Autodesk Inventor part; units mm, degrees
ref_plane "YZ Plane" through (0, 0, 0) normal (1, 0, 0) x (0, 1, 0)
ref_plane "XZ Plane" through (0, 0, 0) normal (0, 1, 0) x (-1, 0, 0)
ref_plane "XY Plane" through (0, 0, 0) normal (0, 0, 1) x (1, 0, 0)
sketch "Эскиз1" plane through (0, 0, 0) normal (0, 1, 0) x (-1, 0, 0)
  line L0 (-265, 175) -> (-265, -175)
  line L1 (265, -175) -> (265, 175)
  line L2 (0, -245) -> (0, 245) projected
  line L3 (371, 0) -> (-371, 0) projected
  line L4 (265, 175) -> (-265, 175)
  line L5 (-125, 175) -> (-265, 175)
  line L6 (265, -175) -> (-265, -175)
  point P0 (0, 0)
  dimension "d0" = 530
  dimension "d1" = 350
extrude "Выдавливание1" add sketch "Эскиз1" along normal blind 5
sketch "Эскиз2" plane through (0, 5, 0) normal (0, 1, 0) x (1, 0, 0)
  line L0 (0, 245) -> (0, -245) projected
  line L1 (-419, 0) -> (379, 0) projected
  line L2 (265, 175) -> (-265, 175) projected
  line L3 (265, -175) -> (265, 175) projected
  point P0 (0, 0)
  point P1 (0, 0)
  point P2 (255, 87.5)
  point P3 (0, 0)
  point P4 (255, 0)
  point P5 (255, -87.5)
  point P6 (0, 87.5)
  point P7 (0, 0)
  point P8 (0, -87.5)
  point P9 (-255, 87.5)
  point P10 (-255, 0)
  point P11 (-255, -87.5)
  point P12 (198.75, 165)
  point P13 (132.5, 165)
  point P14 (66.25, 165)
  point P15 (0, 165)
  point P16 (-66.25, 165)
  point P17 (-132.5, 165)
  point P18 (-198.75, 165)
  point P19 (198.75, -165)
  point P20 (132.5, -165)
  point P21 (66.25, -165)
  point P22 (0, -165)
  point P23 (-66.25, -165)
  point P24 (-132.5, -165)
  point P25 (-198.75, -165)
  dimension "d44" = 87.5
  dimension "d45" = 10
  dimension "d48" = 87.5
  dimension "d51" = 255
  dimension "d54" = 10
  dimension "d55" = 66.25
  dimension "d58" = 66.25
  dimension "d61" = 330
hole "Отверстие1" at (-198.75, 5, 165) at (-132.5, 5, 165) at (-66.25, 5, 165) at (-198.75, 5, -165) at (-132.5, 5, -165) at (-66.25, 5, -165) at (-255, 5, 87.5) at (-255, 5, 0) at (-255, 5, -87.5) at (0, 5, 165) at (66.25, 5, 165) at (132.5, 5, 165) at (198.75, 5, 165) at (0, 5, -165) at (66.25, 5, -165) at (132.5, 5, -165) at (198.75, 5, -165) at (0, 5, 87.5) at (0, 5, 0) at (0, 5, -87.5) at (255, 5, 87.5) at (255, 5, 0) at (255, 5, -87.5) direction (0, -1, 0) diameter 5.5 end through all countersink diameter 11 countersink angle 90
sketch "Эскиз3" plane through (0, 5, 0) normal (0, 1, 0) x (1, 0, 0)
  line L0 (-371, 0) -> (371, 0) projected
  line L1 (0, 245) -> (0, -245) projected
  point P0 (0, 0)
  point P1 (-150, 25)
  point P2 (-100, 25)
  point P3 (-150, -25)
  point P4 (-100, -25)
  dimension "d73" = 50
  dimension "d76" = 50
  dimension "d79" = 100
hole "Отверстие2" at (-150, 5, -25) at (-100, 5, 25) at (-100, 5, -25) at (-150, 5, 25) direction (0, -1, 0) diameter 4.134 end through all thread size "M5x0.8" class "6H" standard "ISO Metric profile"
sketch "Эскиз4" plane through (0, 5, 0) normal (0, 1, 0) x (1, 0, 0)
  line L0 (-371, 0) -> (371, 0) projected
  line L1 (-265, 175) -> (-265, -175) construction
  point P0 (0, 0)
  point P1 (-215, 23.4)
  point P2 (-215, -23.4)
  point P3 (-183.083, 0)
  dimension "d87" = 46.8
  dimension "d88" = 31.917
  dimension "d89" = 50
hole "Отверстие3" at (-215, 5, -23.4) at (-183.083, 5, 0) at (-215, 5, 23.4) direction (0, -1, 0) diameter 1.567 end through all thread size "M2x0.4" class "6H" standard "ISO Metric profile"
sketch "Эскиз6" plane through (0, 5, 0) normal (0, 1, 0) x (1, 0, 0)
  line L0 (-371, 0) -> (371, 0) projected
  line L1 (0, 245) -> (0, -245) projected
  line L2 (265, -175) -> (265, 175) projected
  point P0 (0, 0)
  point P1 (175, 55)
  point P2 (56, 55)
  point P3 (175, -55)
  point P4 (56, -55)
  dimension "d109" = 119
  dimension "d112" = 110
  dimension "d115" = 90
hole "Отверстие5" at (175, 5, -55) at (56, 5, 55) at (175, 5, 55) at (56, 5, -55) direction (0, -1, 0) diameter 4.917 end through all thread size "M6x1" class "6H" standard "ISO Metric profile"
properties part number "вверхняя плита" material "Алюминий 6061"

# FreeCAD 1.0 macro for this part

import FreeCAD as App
import Part
import Sketcher
from FreeCAD import Vector
Q = App.Units.Quantity

doc = App.newDocument("Part")
params = doc.addObject("Spreadsheet::Sheet", "Params")
for row, (alias, value) in enumerate([
    ("sketch1_width", "530 mm"),
    ("sketch1_height", "350 mm"),
    ("pad1_length", "5 mm"),
    ("sketch2_diameter", "5.5 mm"),
    ("hole_diameter", "5.5 mm"),
    ("hole_csink_diameter", "11 mm"),
    ("hole2_diameter", "4.134 mm"),
    ("hole3_diameter", "1.567 mm"),
    ("hole4_diameter", "4.917 mm"),
], start=1):
    params.set(f"A{row}", alias)
    params.set(f"B{row}", "=" + value)
    params.setAlias(f"B{row}", alias)

body = doc.addObject("PartDesign::Body", "Body")

sketch1 = body.newObject("Sketcher::SketchObject", "Sketch")
sketch1.AttachmentSupport = (doc.getObject("XZ_Plane"), [""])
sketch1.MapMode = "FlatFace"
sketch1.addGeometry(Part.LineSegment(Vector(265, 175, 0), Vector(265, -175, 0)), False)
sketch1.addGeometry(Part.LineSegment(Vector(265, -175, 0), Vector(-265, -175, 0)), False)
sketch1.addGeometry(Part.LineSegment(Vector(-265, -175, 0), Vector(-265, 175, 0)), False)
sketch1.addGeometry(Part.LineSegment(Vector(-265, 175, 0), Vector(265, 175, 0)), False)
sketch1.addConstraint(Sketcher.Constraint("Coincident", 0, 2, 1, 1))
sketch1.addConstraint(Sketcher.Constraint("Coincident", 1, 2, 2, 1))
sketch1.addConstraint(Sketcher.Constraint("Coincident", 2, 2, 3, 1))
sketch1.addConstraint(Sketcher.Constraint("Coincident", 3, 2, 0, 1))
sketch1.addConstraint(Sketcher.Constraint("Vertical", 0))
sketch1.addConstraint(Sketcher.Constraint("Horizontal", 1))
sketch1.addConstraint(Sketcher.Constraint("Vertical", 2))
sketch1.addConstraint(Sketcher.Constraint("Horizontal", 3))
sketch1.addConstraint(Sketcher.Constraint("Symmetric", 0, 2, 2, 2, -1, 1))
sketch1.addConstraint(Sketcher.Constraint("DistanceX", 1, 2, 1, 1, Q("530 mm")))
sketch1.addConstraint(Sketcher.Constraint("DistanceY", 0, 2, 0, 1, Q("350 mm")))
sketch1.setExpression("Constraints[9]", "Params.sketch1_width")
sketch1.setExpression("Constraints[10]", "Params.sketch1_height")
pad1 = body.newObject("PartDesign::Pad", "Pad")
pad1.Profile = sketch1
pad1.setExpression("Length", "Params.pad1_length")
pad1.Reversed = True

sketch2 = body.newObject("Sketcher::SketchObject", "Sketch001")
sketch2.AttachmentSupport = (doc.getObject("XZ_Plane"), [""])
sketch2.MapMode = "FlatFace"
sketch2.AttachmentOffset = App.Placement(Vector(0, 0, -5), App.Rotation())
sketch2.addGeometry(Part.Circle(Vector(-198.8, 165, 0), Vector(0, 0, 1), 2.8), False)
sketch2.addGeometry(Part.Circle(Vector(-132.5, 165, 0), Vector(0, 0, 1), 2.8), False)
sketch2.addGeometry(Part.Circle(Vector(-66.2, 165, 0), Vector(0, 0, 1), 2.8), False)
sketch2.addGeometry(Part.Circle(Vector(-198.8, -165, 0), Vector(0, 0, 1), 2.8), False)
sketch2.addGeometry(Part.Circle(Vector(-132.5, -165, 0), Vector(0, 0, 1), 2.8), False)
sketch2.addGeometry(Part.Circle(Vector(-66.2, -165, 0), Vector(0, 0, 1), 2.8), False)
sketch2.addGeometry(Part.Circle(Vector(-255, 87.5, 0), Vector(0, 0, 1), 2.8), False)
sketch2.addGeometry(Part.Circle(Vector(-255, 0, 0), Vector(0, 0, 1), 2.8), False)
sketch2.addGeometry(Part.Circle(Vector(-255, -87.5, 0), Vector(0, 0, 1), 2.8), False)
sketch2.addGeometry(Part.Circle(Vector(0, 165, 0), Vector(0, 0, 1), 2.8), False)
sketch2.addGeometry(Part.Circle(Vector(66.2, 165, 0), Vector(0, 0, 1), 2.8), False)
sketch2.addGeometry(Part.Circle(Vector(132.5, 165, 0), Vector(0, 0, 1), 2.8), False)
sketch2.addGeometry(Part.Circle(Vector(198.8, 165, 0), Vector(0, 0, 1), 2.8), False)
sketch2.addGeometry(Part.Circle(Vector(0, -165, 0), Vector(0, 0, 1), 2.8), False)
sketch2.addGeometry(Part.Circle(Vector(66.2, -165, 0), Vector(0, 0, 1), 2.8), False)
sketch2.addGeometry(Part.Circle(Vector(132.5, -165, 0), Vector(0, 0, 1), 2.8), False)
sketch2.addGeometry(Part.Circle(Vector(198.8, -165, 0), Vector(0, 0, 1), 2.8), False)
sketch2.addGeometry(Part.Circle(Vector(0, 87.5, 0), Vector(0, 0, 1), 2.8), False)
sketch2.addGeometry(Part.Circle(Vector(0, 0, 0), Vector(0, 0, 1), 2.8), False)
sketch2.addGeometry(Part.Circle(Vector(0, -87.5, 0), Vector(0, 0, 1), 2.8), False)
sketch2.addGeometry(Part.Circle(Vector(255, 87.5, 0), Vector(0, 0, 1), 2.8), False)
sketch2.addGeometry(Part.Circle(Vector(255, 0, 0), Vector(0, 0, 1), 2.8), False)
sketch2.addGeometry(Part.Circle(Vector(255, -87.5, 0), Vector(0, 0, 1), 2.8), False)
sketch2.addConstraint(Sketcher.Constraint("Coincident", 18, 3, -1, 1))
sketch2.addConstraint(Sketcher.Constraint("Equal", 0, 1))
sketch2.addConstraint(Sketcher.Constraint("Equal", 1, 2))
sketch2.addConstraint(Sketcher.Constraint("Equal", 2, 3))
sketch2.addConstraint(Sketcher.Constraint("Equal", 3, 4))
sketch2.addConstraint(Sketcher.Constraint("Equal", 4, 5))
sketch2.addConstraint(Sketcher.Constraint("Equal", 5, 6))
sketch2.addConstraint(Sketcher.Constraint("Equal", 6, 7))
sketch2.addConstraint(Sketcher.Constraint("Equal", 7, 8))
sketch2.addConstraint(Sketcher.Constraint("Equal", 8, 9))
sketch2.addConstraint(Sketcher.Constraint("Equal", 9, 10))
sketch2.addConstraint(Sketcher.Constraint("Equal", 10, 11))
sketch2.addConstraint(Sketcher.Constraint("Equal", 11, 12))
sketch2.addConstraint(Sketcher.Constraint("Equal", 12, 13))
sketch2.addConstraint(Sketcher.Constraint("Equal", 13, 14))
sketch2.addConstraint(Sketcher.Constraint("Equal", 14, 15))
sketch2.addConstraint(Sketcher.Constraint("Equal", 15, 16))
sketch2.addConstraint(Sketcher.Constraint("Equal", 16, 17))
sketch2.addConstraint(Sketcher.Constraint("Equal", 17, 18))
sketch2.addConstraint(Sketcher.Constraint("Equal", 18, 19))
sketch2.addConstraint(Sketcher.Constraint("Equal", 19, 20))
sketch2.addConstraint(Sketcher.Constraint("Equal", 20, 21))
sketch2.addConstraint(Sketcher.Constraint("Equal", 21, 22))
sketch2.addConstraint(Sketcher.Constraint("Symmetric", 5, 3, 10, 3, -1, 1))
sketch2.addConstraint(Sketcher.Constraint("Symmetric", 4, 3, 11, 3, -1, 1))
sketch2.addConstraint(Sketcher.Constraint("Symmetric", 3, 3, 12, 3, -1, 1))
sketch2.addConstraint(Sketcher.Constraint("Symmetric", 9, 3, 13, 3, -1, 1))
sketch2.addConstraint(Sketcher.Constraint("Symmetric", 2, 3, 14, 3, -1, 1))
sketch2.addConstraint(Sketcher.Constraint("Symmetric", 1, 3, 15, 3, -1, 1))
sketch2.addConstraint(Sketcher.Constraint("Symmetric", 0, 3, 16, 3, -1, 1))
sketch2.addConstraint(Sketcher.Constraint("Symmetric", 17, 3, 19, 3, -1, 1))
sketch2.addConstraint(Sketcher.Constraint("Symmetric", 8, 3, 20, 3, -1, 1))
sketch2.addConstraint(Sketcher.Constraint("Symmetric", 7, 3, 21, 3, -1, 1))
sketch2.addConstraint(Sketcher.Constraint("Symmetric", 6, 3, 22, 3, -1, 1))
sketch2.addConstraint(Sketcher.Constraint("Symmetric", 2, 3, 10, 3, -2))
sketch2.addConstraint(Sketcher.Constraint("Symmetric", 1, 3, 11, 3, -2))
sketch2.addConstraint(Sketcher.Constraint("Symmetric", 0, 3, 12, 3, -2))
sketch2.addConstraint(Sketcher.Constraint("Symmetric", 6, 3, 20, 3, -2))
sketch2.addConstraint(Sketcher.Constraint("PointOnObject", 7, 3, -1))
sketch2.addConstraint(Sketcher.Constraint("PointOnObject", 9, 3, -2))
sketch2.addConstraint(Sketcher.Constraint("PointOnObject", 17, 3, -2))
sketch2.addConstraint(Sketcher.Constraint("Horizontal", 0, 3, 1, 3))
sketch2.addConstraint(Sketcher.Constraint("Horizontal", 1, 3, 2, 3))
sketch2.addConstraint(Sketcher.Constraint("Horizontal", 2, 3, 9, 3))
sketch2.addConstraint(Sketcher.Constraint("Horizontal", 6, 3, 17, 3))
sketch2.addConstraint(Sketcher.Constraint("Vertical", 6, 3, 7, 3))
sketch2.addConstraint(Sketcher.Constraint("Diameter", 0, Q("5.5 mm")))
sketch2.addConstraint(Sketcher.Constraint("DistanceY", -1, 1, 0, 3, Q("165 mm")))
sketch2.addConstraint(Sketcher.Constraint("DistanceX", 6, 3, -1, 1, Q("255 mm")))
sketch2.addConstraint(Sketcher.Constraint("DistanceY", 8, 3, 6, 3, Q("175 mm")))
sketch2.addConstraint(Sketcher.Constraint("DistanceX", 0, 3, 10, 3, Q("265 mm")))
sketch2.addConstraint(Sketcher.Constraint("DistanceX", 1, 3, 11, 3, Q("265 mm")))
sketch2.addConstraint(Sketcher.Constraint("DistanceX", 0, 3, 2, 3, Q("132.5 mm")))
sketch2.setExpression("Constraints[46]", "Params.sketch2_diameter")
doc.recompute()
hole = body.newObject("PartDesign::Hole", "Hole")
hole.Profile = sketch2
hole.ThreadType = "None"
hole.setExpression("Diameter", "Params.hole_diameter")
hole.DepthType = "ThroughAll"
hole.HoleCutType = "Countersink"
hole.setExpression("HoleCutDiameter", "Params.hole_csink_diameter")
hole.HoleCutCountersinkAngle = 90
hole.Reversed = True

sketch3 = body.newObject("Sketcher::SketchObject", "Sketch002")
sketch3.AttachmentSupport = (doc.getObject("XZ_Plane"), [""])
sketch3.MapMode = "FlatFace"
sketch3.AttachmentOffset = App.Placement(Vector(0, 0, -5), App.Rotation())
sketch3.addGeometry(Part.Circle(Vector(-150, -25, 0), Vector(0, 0, 1), 2.1), False)
sketch3.addGeometry(Part.Circle(Vector(-100, 25, 0), Vector(0, 0, 1), 2.1), False)
sketch3.addGeometry(Part.Circle(Vector(-100, -25, 0), Vector(0, 0, 1), 2.1), False)
sketch3.addGeometry(Part.Circle(Vector(-150, 25, 0), Vector(0, 0, 1), 2.1), False)
sketch3.addConstraint(Sketcher.Constraint("Equal", 0, 1))
sketch3.addConstraint(Sketcher.Constraint("Equal", 1, 2))
sketch3.addConstraint(Sketcher.Constraint("Equal", 2, 3))
sketch3.addConstraint(Sketcher.Constraint("Symmetric", 1, 3, 2, 3, -1))
sketch3.addConstraint(Sketcher.Constraint("Symmetric", 0, 3, 3, 3, -1))
sketch3.addConstraint(Sketcher.Constraint("Horizontal", 0, 3, 2, 3))
sketch3.addConstraint(Sketcher.Constraint("Diameter", 0, Q("4.134 mm")))
sketch3.addConstraint(Sketcher.Constraint("DistanceX", 0, 3, -1, 1, Q("150 mm")))
sketch3.addConstraint(Sketcher.Constraint("DistanceY", 0, 3, -1, 1, Q("25 mm")))
sketch3.addConstraint(Sketcher.Constraint("DistanceX", 1, 3, -1, 1, Q("100 mm")))
doc.recompute()
hole2 = body.newObject("PartDesign::Hole", "Hole001")
hole2.Profile = sketch3
hole2.ThreadType = "None"
hole2.setExpression("Diameter", "Params.hole2_diameter")
hole2.DepthType = "ThroughAll"
hole2.Reversed = True

sketch4 = body.newObject("Sketcher::SketchObject", "Sketch003")
sketch4.AttachmentSupport = (doc.getObject("XZ_Plane"), [""])
sketch4.MapMode = "FlatFace"
sketch4.AttachmentOffset = App.Placement(Vector(0, 0, -5), App.Rotation())
sketch4.addGeometry(Part.Circle(Vector(-215, -23.4, 0), Vector(0, 0, 1), 0.8), False)
sketch4.addGeometry(Part.Circle(Vector(-183.1, 0, 0), Vector(0, 0, 1), 0.8), False)
sketch4.addGeometry(Part.Circle(Vector(-215, 23.4, 0), Vector(0, 0, 1), 0.8), False)
sketch4.addConstraint(Sketcher.Constraint("Equal", 0, 1))
sketch4.addConstraint(Sketcher.Constraint("Equal", 1, 2))
sketch4.addConstraint(Sketcher.Constraint("Symmetric", 0, 3, 2, 3, -1))
sketch4.addConstraint(Sketcher.Constraint("PointOnObject", 1, 3, -1))
sketch4.addConstraint(Sketcher.Constraint("Diameter", 0, Q("1.567 mm")))
sketch4.addConstraint(Sketcher.Constraint("DistanceX", 0, 3, -1, 1, Q("215 mm")))
sketch4.addConstraint(Sketcher.Constraint("DistanceY", 0, 3, -1, 1, Q("23.4 mm")))
sketch4.addConstraint(Sketcher.Constraint("DistanceX", 1, 3, -1, 1, Q("183.083 mm")))
doc.recompute()
hole3 = body.newObject("PartDesign::Hole", "Hole002")
hole3.Profile = sketch4
hole3.ThreadType = "None"
hole3.setExpression("Diameter", "Params.hole3_diameter")
hole3.DepthType = "ThroughAll"
hole3.Reversed = True

sketch5 = body.newObject("Sketcher::SketchObject", "Sketch004")
sketch5.AttachmentSupport = (doc.getObject("XZ_Plane"), [""])
sketch5.MapMode = "FlatFace"
sketch5.AttachmentOffset = App.Placement(Vector(0, 0, -5), App.Rotation())
sketch5.addGeometry(Part.Circle(Vector(175, -55, 0), Vector(0, 0, 1), 2.5), False)
sketch5.addGeometry(Part.Circle(Vector(56, 55, 0), Vector(0, 0, 1), 2.5), False)
sketch5.addGeometry(Part.Circle(Vector(175, 55, 0), Vector(0, 0, 1), 2.5), False)
sketch5.addGeometry(Part.Circle(Vector(56, -55, 0), Vector(0, 0, 1), 2.5), False)
sketch5.addConstraint(Sketcher.Constraint("Equal", 0, 1))
sketch5.addConstraint(Sketcher.Constraint("Equal", 1, 2))
sketch5.addConstraint(Sketcher.Constraint("Equal", 2, 3))
sketch5.addConstraint(Sketcher.Constraint("Symmetric", 0, 3, 2, 3, -1))
sketch5.addConstraint(Sketcher.Constraint("Symmetric", 1, 3, 3, 3, -1))
sketch5.addConstraint(Sketcher.Constraint("Horizontal", 1, 3, 2, 3))
sketch5.addConstraint(Sketcher.Constraint("Diameter", 0, Q("4.917 mm")))
sketch5.addConstraint(Sketcher.Constraint("DistanceX", -1, 1, 0, 3, Q("175 mm")))
sketch5.addConstraint(Sketcher.Constraint("DistanceY", 0, 3, -1, 1, Q("55 mm")))
sketch5.addConstraint(Sketcher.Constraint("DistanceX", -1, 1, 1, 3, Q("56 mm")))
doc.recompute()
hole4 = body.newObject("PartDesign::Hole", "Hole003")
hole4.Profile = sketch5
hole4.ThreadType = "None"
hole4.setExpression("Diameter", "Params.hole4_diameter")
hole4.DepthType = "ThroughAll"
hole4.Reversed = True

doc.recompute()
